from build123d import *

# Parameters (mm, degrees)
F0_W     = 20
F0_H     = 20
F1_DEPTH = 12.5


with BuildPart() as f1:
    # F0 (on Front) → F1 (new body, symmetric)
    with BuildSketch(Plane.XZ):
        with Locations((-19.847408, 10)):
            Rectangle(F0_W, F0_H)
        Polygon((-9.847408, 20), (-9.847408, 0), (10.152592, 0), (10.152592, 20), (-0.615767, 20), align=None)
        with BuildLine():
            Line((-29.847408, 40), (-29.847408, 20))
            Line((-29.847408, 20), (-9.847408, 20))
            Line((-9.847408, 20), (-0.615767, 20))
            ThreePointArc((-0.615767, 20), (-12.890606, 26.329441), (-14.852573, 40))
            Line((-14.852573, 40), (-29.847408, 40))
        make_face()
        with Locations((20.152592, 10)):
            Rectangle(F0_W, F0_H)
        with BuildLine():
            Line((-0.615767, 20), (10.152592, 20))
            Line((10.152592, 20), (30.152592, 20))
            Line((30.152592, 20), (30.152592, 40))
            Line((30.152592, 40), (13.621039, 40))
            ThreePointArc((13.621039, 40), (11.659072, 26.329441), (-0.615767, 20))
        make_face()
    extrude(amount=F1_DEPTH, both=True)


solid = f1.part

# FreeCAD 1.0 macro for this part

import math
import FreeCAD as App
import Part
import Sketcher
from FreeCAD import Vector
Q = App.Units.Quantity

doc = App.newDocument("Part")
params = doc.addObject("Spreadsheet::Sheet", "Params")
for row, (alias, value) in enumerate([
    ("sketch1_width", "60 mm"),
    ("sketch1_height", "40 mm"),
    ("pad1_length", "25 mm"),
], start=1):
    params.set(f"A{row}", alias)
    params.set(f"B{row}", "=" + value)
    params.setAlias(f"B{row}", alias)

body = doc.addObject("PartDesign::Body", "Body")

# Sketch on XZ plane
sketch1 = doc.addObject("Sketcher::SketchObject", "Sketch")
body.addObject(sketch1)
sketch1.AttachmentSupport = (doc.XZ_Plane, [""])
sketch1.MapMode = "FlatFace"
sketch1.addGeometry(Part.LineSegment(Vector(-30, 0, 0), Vector(30, 0, 0)), False)
sketch1.addGeometry(Part.LineSegment(Vector(30, 0, 0), Vector(30, 40, 0)), False)
sketch1.addGeometry(Part.LineSegment(Vector(30, 40, 0), Vector(14, 40, 0)), False)
sketch1.addGeometry(Part.ArcOfCircle(Part.Circle(Vector(-1, 35, 0), Vector(0, 0, 1), 15), math.radians(-90), math.radians(19)), False)
sketch1.addGeometry(Part.ArcOfCircle(Part.Circle(Vector(-1, 35, 0), Vector(0, 0, 1), 15), math.radians(161), math.radians(270)), False)
sketch1.addGeometry(Part.LineSegment(Vector(-15, 40, 0), Vector(-30, 40, 0)), False)
sketch1.addGeometry(Part.LineSegment(Vector(-30, 40, 0), Vector(-30, 0, 0)), False)
sketch1.addConstraint(Sketcher.Constraint("Coincident", 0, 2, 1, 1))
sketch1.addConstraint(Sketcher.Constraint("Coincident", 1, 2, 2, 1))
sketch1.addConstraint(Sketcher.Constraint("Coincident", 2, 2, 3, 2))
sketch1.addConstraint(Sketcher.Constraint("Tangent", 3, 1, 4, 2))
sketch1.addConstraint(Sketcher.Constraint("Coincident", 4, 1, 5, 1))
sketch1.addConstraint(Sketcher.Constraint("Coincident", 5, 2, 6, 1))
sketch1.addConstraint(Sketcher.Constraint("Coincident", 6, 2, 0, 1))
sketch1.addConstraint(Sketcher.Constraint("Horizontal", 0))
sketch1.addConstraint(Sketcher.Constraint("Vertical", 1))
sketch1.addConstraint(Sketcher.Constraint("Horizontal", 2))
sketch1.addConstraint(Sketcher.Constraint("Horizontal", 5))
sketch1.addConstraint(Sketcher.Constraint("Vertical", 6))
sketch1.addConstraint(Sketcher.Constraint("Equal", 3, 4))
sketch1.addConstraint(Sketcher.Constraint("PointOnObject", 0, 2, -1))
sketch1.addConstraint(Sketcher.Constraint("Horizontal", 2, 2, 4, 1))
sketch1.addConstraint(Sketcher.Constraint("Vertical", 4, 3, 3, 1))
sketch1.addConstraint(Sketcher.Constraint("DistanceX", 0, 1, 0, 2, Q("60 mm")))
sketch1.addConstraint(Sketcher.Constraint("DistanceY", 1, 1, 1, 2, Q("40 mm")))
sketch1.addConstraint(Sketcher.Constraint("DistanceY", -1, 1, 3, 1, Q("20 mm")))
sketch1.addConstraint(Sketcher.Constraint("Radius", 3, Q("15.067165 mm")))
sketch1.addConstraint(Sketcher.Constraint("DistanceX", 2, 2, 2, 1, Q("16.531553 mm")))
sketch1.addConstraint(Sketcher.Constraint("DistanceX", 4, 3, -1, 1, Q("0.615768 mm")))
sketch1.setExpression("Constraints[16]", "Params.sketch1_width")
sketch1.setExpression("Constraints[17]", "Params.sketch1_height")
pad1 = doc.addObject("PartDesign::Pad", "Pad")
body.addObject(pad1)
pad1.Profile = sketch1
pad1.setExpression("Length", "Params.pad1_length")
pad1.Midplane = True

doc.recompute()
